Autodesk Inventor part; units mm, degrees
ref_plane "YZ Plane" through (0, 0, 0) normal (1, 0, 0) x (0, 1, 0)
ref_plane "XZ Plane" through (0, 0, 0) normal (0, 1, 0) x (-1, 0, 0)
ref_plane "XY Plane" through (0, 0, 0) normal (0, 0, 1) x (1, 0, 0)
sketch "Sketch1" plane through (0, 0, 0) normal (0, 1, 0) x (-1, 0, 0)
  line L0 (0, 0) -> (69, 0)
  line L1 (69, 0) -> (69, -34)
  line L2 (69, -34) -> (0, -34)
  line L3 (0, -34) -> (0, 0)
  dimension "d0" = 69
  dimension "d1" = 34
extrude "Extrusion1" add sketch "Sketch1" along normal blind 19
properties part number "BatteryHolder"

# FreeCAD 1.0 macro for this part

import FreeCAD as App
import Part
import Sketcher
from FreeCAD import Vector
Q = App.Units.Quantity

doc = App.newDocument("Part")
body = doc.addObject("PartDesign::Body", "Body")

sketch1 = body.newObject("Sketcher::SketchObject", "Sketch")
sketch1.AttachmentSupport = (doc.getObject("XZ_Plane"), [""])
sketch1.MapMode = "FlatFace"
sketch1.addGeometry(Part.LineSegment(Vector(-69, 0, 0), Vector(0, 0, 0)), False)
sketch1.addGeometry(Part.LineSegment(Vector(0, 0, 0), Vector(0, -34, 0)), False)
sketch1.addGeometry(Part.LineSegment(Vector(0, -34, 0), Vector(-69, -34, 0)), False)
sketch1.addGeometry(Part.LineSegment(Vector(-69, -34, 0), Vector(-69, 0, 0)), False)
sketch1.addConstraint(Sketcher.Constraint("Coincident", 0, 2, 1, 1))
sketch1.addConstraint(Sketcher.Constraint("Coincident", 1, 2, 2, 1))
sketch1.addConstraint(Sketcher.Constraint("Coincident", 2, 2, 3, 1))
sketch1.addConstraint(Sketcher.Constraint("Coincident", 3, 2, 0, 1))
sketch1.addConstraint(Sketcher.Constraint("Horizontal", 0))
sketch1.addConstraint(Sketcher.Constraint("Vertical", 1))
sketch1.addConstraint(Sketcher.Constraint("Horizontal", 2))
sketch1.addConstraint(Sketcher.Constraint("Vertical", 3))
sketch1.addConstraint(Sketcher.Constraint("Coincident", 0, 2, -1, 1))
sketch1.addConstraint(Sketcher.Constraint("DistanceX", 0, 1, 0, 2, Q("69 mm")))
sketch1.addConstraint(Sketcher.Constraint("DistanceY", 1, 2, 1, 1, Q("34 mm")))
pad1 = body.newObject("PartDesign::Pad", "Pad")
pad1.Profile = sketch1
pad1.Length = 19
pad1.Reversed = True

doc.recompute()
